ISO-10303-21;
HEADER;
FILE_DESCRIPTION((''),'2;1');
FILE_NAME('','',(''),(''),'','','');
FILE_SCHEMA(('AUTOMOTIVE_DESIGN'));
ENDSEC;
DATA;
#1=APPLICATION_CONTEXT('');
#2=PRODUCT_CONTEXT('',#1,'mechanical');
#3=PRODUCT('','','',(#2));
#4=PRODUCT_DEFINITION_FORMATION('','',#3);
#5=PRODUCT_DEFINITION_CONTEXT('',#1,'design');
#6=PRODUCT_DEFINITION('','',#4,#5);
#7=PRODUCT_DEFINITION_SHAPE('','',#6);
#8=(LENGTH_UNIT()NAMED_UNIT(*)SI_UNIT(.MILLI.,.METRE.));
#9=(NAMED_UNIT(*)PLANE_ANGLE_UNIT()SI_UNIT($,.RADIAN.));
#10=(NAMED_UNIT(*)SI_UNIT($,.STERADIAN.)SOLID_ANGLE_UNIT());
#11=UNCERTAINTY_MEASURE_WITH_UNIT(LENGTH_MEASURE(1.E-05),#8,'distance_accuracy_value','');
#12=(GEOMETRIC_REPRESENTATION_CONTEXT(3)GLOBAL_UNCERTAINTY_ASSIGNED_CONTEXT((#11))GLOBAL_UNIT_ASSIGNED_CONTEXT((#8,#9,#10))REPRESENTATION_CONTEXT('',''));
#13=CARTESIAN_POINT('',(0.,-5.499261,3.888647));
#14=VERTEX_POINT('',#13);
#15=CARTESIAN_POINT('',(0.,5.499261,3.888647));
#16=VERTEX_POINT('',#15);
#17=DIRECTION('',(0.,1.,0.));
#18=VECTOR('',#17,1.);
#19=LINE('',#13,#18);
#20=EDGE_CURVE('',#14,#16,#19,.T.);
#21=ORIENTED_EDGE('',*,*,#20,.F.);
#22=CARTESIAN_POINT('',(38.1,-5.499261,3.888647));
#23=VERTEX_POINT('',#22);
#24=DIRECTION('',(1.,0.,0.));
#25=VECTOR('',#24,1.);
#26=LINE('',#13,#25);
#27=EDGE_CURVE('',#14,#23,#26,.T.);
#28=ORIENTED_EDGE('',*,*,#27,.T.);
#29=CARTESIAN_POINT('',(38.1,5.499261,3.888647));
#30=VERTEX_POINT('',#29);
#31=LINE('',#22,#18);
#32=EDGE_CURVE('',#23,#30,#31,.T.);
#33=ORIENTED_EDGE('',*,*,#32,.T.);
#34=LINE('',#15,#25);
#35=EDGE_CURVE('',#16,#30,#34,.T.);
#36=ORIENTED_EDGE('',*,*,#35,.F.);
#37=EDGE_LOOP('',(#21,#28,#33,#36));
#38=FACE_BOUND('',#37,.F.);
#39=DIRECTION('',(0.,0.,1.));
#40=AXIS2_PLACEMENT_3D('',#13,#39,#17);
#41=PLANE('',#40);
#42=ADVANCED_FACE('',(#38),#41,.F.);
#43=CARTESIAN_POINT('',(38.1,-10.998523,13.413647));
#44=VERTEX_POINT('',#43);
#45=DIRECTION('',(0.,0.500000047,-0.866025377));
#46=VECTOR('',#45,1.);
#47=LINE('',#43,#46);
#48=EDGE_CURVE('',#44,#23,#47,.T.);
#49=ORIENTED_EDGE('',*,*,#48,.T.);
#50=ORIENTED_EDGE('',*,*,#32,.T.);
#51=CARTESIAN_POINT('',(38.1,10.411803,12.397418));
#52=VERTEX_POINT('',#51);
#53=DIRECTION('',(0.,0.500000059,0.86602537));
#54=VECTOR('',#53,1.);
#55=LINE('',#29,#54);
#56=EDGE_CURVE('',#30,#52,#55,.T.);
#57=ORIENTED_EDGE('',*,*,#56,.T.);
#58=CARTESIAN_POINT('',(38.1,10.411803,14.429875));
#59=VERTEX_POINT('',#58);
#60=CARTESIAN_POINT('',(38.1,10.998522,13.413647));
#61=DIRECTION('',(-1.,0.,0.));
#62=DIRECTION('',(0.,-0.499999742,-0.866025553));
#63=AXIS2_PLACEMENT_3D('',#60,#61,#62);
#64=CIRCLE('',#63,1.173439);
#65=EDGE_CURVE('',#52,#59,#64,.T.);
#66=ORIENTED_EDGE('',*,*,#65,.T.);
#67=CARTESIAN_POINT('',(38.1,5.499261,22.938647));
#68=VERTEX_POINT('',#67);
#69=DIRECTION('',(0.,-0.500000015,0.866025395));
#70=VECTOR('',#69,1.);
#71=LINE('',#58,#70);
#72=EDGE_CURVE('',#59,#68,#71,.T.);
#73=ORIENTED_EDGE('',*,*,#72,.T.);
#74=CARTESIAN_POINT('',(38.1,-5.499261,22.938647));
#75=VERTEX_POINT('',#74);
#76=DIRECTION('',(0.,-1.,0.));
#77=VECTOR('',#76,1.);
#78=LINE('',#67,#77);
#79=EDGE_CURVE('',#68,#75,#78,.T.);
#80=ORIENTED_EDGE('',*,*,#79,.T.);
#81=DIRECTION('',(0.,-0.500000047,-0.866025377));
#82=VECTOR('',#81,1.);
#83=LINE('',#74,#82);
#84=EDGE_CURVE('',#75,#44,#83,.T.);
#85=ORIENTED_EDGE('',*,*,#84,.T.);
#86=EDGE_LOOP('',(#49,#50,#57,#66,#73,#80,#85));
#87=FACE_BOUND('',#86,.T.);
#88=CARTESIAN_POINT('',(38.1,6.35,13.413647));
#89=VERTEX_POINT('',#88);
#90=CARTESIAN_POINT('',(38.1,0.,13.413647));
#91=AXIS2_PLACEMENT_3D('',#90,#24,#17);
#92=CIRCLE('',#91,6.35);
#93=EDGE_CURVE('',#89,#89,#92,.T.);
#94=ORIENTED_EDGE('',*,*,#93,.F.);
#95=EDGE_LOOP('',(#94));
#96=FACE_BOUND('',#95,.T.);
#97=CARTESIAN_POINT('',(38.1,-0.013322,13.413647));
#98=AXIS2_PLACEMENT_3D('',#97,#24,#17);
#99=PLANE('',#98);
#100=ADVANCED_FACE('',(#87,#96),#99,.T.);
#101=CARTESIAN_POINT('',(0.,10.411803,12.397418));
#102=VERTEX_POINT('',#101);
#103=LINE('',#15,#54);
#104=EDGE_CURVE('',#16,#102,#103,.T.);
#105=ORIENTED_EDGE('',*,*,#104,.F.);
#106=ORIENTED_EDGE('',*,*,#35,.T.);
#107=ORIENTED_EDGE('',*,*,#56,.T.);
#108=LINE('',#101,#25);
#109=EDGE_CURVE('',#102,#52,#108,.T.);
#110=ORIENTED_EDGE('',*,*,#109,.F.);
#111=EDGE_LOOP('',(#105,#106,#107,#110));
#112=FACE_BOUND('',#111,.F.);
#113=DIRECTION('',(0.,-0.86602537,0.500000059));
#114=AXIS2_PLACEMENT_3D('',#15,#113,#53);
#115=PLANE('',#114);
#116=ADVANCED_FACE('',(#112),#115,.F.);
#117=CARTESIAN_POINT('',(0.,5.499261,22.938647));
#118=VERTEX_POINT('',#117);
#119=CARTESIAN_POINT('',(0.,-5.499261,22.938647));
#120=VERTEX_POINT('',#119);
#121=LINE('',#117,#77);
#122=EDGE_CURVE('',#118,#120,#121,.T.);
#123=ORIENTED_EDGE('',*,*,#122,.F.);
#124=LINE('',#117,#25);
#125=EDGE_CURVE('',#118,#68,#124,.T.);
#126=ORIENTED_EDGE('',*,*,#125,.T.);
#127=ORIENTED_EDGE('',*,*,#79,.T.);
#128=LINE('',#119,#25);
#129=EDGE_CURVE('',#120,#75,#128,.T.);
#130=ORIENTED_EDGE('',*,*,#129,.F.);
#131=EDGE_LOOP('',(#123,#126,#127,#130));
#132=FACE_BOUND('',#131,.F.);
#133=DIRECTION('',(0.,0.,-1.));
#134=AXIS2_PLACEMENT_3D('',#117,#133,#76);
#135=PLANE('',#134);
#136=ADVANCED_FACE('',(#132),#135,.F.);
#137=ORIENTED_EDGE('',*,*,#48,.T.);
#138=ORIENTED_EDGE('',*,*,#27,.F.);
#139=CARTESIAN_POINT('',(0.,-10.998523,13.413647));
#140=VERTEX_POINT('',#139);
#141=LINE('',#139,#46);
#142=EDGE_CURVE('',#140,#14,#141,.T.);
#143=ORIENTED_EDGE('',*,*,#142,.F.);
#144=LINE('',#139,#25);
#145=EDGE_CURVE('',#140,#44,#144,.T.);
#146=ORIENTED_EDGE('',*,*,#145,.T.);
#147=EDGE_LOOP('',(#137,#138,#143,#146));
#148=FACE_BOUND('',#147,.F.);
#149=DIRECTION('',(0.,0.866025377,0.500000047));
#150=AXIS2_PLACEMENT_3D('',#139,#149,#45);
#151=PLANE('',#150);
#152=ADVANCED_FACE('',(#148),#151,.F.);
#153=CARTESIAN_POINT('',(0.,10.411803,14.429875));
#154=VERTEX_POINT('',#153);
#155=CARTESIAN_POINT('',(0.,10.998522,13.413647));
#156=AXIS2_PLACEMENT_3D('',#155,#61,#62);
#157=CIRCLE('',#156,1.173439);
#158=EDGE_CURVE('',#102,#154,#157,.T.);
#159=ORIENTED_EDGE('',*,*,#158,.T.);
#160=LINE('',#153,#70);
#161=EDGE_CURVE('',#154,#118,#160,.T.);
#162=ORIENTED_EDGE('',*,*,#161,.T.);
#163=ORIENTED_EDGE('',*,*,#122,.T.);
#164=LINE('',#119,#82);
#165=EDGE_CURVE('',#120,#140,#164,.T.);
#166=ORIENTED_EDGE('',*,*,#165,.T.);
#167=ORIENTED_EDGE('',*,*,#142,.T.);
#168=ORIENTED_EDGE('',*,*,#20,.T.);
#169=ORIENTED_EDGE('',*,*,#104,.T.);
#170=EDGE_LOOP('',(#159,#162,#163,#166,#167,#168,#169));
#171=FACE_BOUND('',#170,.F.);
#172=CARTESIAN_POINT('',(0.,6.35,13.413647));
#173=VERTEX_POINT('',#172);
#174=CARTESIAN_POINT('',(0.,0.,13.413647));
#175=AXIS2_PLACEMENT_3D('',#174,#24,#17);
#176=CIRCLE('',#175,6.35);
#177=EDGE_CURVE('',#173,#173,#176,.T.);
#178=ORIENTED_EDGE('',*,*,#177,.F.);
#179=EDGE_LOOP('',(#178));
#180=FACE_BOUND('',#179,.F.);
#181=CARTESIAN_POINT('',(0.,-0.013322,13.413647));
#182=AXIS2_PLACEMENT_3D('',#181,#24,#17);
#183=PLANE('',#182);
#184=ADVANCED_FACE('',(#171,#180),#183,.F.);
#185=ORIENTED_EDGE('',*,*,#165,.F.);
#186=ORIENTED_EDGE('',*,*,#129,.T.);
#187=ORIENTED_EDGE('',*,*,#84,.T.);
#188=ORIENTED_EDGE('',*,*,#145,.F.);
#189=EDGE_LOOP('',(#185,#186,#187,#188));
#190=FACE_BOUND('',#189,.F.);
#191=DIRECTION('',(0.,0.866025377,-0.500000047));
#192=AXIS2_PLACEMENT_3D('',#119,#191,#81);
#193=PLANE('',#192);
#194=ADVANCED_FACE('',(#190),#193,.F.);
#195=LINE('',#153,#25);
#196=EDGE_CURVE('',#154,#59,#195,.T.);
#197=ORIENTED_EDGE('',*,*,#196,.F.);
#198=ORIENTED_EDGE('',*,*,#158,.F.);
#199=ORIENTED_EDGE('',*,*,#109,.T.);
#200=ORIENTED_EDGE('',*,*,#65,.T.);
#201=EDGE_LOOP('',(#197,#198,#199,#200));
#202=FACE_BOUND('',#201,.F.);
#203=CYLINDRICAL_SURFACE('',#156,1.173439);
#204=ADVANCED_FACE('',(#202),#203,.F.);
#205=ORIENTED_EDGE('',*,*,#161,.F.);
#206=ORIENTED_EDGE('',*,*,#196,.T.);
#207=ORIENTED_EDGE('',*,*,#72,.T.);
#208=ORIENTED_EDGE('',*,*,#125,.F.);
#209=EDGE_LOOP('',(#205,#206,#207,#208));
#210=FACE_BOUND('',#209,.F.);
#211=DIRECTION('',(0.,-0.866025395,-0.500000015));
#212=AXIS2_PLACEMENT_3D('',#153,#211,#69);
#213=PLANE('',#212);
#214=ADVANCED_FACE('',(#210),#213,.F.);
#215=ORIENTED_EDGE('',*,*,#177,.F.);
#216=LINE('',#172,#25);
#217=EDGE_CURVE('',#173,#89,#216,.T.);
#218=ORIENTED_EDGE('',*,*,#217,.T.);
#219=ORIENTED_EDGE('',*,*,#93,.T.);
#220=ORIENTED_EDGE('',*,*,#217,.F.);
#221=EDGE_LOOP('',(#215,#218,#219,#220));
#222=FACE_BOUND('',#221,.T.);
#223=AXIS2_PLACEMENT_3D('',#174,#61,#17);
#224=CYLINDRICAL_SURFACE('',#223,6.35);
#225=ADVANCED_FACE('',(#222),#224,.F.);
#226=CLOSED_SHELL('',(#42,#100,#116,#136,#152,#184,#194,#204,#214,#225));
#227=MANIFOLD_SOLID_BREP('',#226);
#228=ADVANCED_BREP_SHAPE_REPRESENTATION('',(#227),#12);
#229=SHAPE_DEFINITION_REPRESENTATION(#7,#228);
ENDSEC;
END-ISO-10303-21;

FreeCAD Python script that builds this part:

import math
import FreeCAD as App
import Part
import Sketcher
Q = App.Units.Quantity

doc = App.newDocument("Part")
body = doc.addObject("PartDesign::Body", "Body")

# Sketch on YZ plane
sketch1 = body.newObject("Sketcher::SketchObject", "Sketch")
sketch1.AttachmentSupport = (doc.getObject("YZ_Plane"), [""])
sketch1.MapMode = "FlatFace"
sketch1.addGeometry(Part.LineSegment(App.Vector(-5.5, 3.9, 0), App.Vector(5.5, 3.9, 0)), False)
sketch1.addGeometry(Part.LineSegment(App.Vector(5.5, 3.9, 0), App.Vector(10.4, 12.4, 0)), False)
sketch1.addGeometry(Part.ArcOfCircle(Part.Circle(App.Vector(11, 13.4, 0), App.Vector(0, 0, 1), 1.2), math.radians(120), math.radians(240)), False)
sketch1.addGeometry(Part.LineSegment(App.Vector(10.4, 14.4, 0), App.Vector(5.5, 22.9, 0)), False)
sketch1.addGeometry(Part.LineSegment(App.Vector(5.5, 22.9, 0), App.Vector(-5.5, 22.9, 0)), False)
sketch1.addGeometry(Part.LineSegment(App.Vector(-5.5, 22.9, 0), App.Vector(-11, 13.4, 0)), False)
sketch1.addGeometry(Part.LineSegment(App.Vector(-11, 13.4, 0), App.Vector(-5.5, 3.9, 0)), False)
sketch1.addGeometry(Part.Circle(App.Vector(0, 13.4, 0), App.Vector(0, 0, 1), 6.3), False)
sketch1.addConstraint(Sketcher.Constraint("Coincident", 0, 2, 1, 1))
sketch1.addConstraint(Sketcher.Constraint("Coincident", 1, 2, 2, 2))
sketch1.addConstraint(Sketcher.Constraint("Coincident", 2, 1, 3, 1))
sketch1.addConstraint(Sketcher.Constraint("Coincident", 3, 2, 4, 1))
sketch1.addConstraint(Sketcher.Constraint("Coincident", 4, 2, 5, 1))
sketch1.addConstraint(Sketcher.Constraint("Coincident", 5, 2, 6, 1))
sketch1.addConstraint(Sketcher.Constraint("Coincident", 6, 2, 0, 1))
sketch1.addConstraint(Sketcher.Constraint("Horizontal", 0))
sketch1.addConstraint(Sketcher.Constraint("Horizontal", 4))
sketch1.addConstraint(Sketcher.Constraint("PointOnObject", 7, 3, -2))
sketch1.addConstraint(Sketcher.Constraint("Parallel", 1, 5))
sketch1.addConstraint(Sketcher.Constraint("Parallel", 3, 6))
sketch1.addConstraint(Sketcher.Constraint("Horizontal", 2, 3, 7, 3))
sketch1.addConstraint(Sketcher.Constraint("Horizontal", 7, 3, 5, 2))
sketch1.addConstraint(Sketcher.Constraint("Vertical", 1, 2, 2, 1))
sketch1.addConstraint(Sketcher.Constraint("Vertical", 0, 2, 3, 2))
sketch1.addConstraint(Sketcher.Constraint("Vertical", 4, 2, 6, 2))
sketch1.addConstraint(Sketcher.Constraint("Diameter", 7, Q("0.5 in")))
sketch1.addConstraint(Sketcher.Constraint("Angle", 1, Q("59.999996 deg")))
sketch1.addConstraint(Sketcher.Constraint("DistanceY", 0, 2, 3, 2, Q("0.75 in")))
sketch1.addConstraint(Sketcher.Constraint("Radius", 2, 1.173439))
sketch1.addConstraint(Sketcher.Constraint("DistanceX", 0, 1, 0, 2, 10.998522))
sketch1.addConstraint(Sketcher.Constraint("DistanceX", -1, 1, 0, 2, 5.499261))
sketch1.addConstraint(Sketcher.Constraint("DistanceX", 0, 2, 2, 3, 5.499261))
sketch1.addConstraint(Sketcher.Constraint("DistanceY", -1, 1, 2, 3, 13.413647))
pad1 = body.newObject("PartDesign::Pad", "Pad")
pad1.Profile = sketch1
pad1.Length = Q("1.5 in")

doc.recompute()
